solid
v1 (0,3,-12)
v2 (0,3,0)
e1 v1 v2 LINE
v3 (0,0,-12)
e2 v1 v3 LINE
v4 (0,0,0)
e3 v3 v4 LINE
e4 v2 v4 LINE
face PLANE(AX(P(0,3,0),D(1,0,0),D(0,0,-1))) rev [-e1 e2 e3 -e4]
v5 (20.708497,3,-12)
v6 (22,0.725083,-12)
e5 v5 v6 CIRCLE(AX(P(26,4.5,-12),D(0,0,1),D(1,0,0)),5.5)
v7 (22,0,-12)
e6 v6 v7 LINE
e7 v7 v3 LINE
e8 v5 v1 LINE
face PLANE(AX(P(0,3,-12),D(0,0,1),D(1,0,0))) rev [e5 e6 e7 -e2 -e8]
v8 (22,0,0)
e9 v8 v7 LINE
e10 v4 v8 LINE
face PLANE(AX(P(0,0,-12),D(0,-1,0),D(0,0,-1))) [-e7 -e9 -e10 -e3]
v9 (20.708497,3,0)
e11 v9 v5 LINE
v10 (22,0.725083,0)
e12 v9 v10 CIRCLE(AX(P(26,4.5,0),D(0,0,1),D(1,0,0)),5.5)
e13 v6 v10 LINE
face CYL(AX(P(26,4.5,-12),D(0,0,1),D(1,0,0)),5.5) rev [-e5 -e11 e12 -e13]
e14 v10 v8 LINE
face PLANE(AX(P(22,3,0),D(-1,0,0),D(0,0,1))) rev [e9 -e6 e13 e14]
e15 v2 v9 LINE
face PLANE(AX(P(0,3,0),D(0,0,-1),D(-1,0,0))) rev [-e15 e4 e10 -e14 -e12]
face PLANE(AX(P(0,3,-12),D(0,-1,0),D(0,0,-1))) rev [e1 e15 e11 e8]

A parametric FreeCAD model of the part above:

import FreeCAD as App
import Part
import Sketcher
from FreeCAD import Vector
Q = App.Units.Quantity


def add_polygon(sketch, points):
    """Adds a closed chain of lines whose ends are joined by coincident constraints."""
    first, n = sketch.GeometryCount, len(points)
    for a, b in zip(points, points[1:] + points[:1]):
        sketch.addGeometry(Part.LineSegment(App.Vector(*a, 0), App.Vector(*b, 0)), False)
    for i in range(n):
        sketch.addConstraint(Sketcher.Constraint("Coincident", first + i, 2, first + (i + 1) % n, 1))

doc = App.newDocument("Part")
body = doc.addObject("PartDesign::Body", "Body")

sketch1 = body.newObject("Sketcher::SketchObject", "Sketch")
sketch1.AttachmentSupport = (doc.getObject("XZ_Plane"), [""])
sketch1.MapMode = "FlatFace"
add_polygon(sketch1, [(0, -12), (0, 0), (22, 0), (22, -12)])
sketch1.addConstraint(Sketcher.Constraint("Vertical", 0))
sketch1.addConstraint(Sketcher.Constraint("Horizontal", 1))
sketch1.addConstraint(Sketcher.Constraint("Vertical", 2))
sketch1.addConstraint(Sketcher.Constraint("Horizontal", 3))
sketch1.addConstraint(Sketcher.Constraint("Coincident", 0, 2, -1, 1))
sketch1.addConstraint(Sketcher.Constraint("DistanceX", 1, 1, 1, 2, Q("22 mm")))
sketch1.addConstraint(Sketcher.Constraint("DistanceY", 0, 1, 0, 2, Q("12 mm")))
pad1 = body.newObject("PartDesign::Pad", "Pad")
pad1.Profile = sketch1
pad1.Length = 3
pad1.Reversed = True

sketch2 = body.newObject("Sketcher::SketchObject", "Sketch001")
sketch2.AttachmentSupport = (doc.getObject("XY_Plane"), [""])
sketch2.MapMode = "FlatFace"
sketch2.addGeometry(Part.Circle(Vector(26, 4.5, 0), Vector(0, 0, 1), 5.5), False)
sketch2.addConstraint(Sketcher.Constraint("Diameter", 0, Q("11 mm")))
sketch2.addConstraint(Sketcher.Constraint("DistanceX", -1, 1, 0, 3, Q("26 mm")))
sketch2.addConstraint(Sketcher.Constraint("DistanceY", -1, 1, 0, 3, Q("4.5 mm")))
pocket1 = body.newObject("PartDesign::Pocket", "Pocket")
pocket1.Profile = sketch2
pocket1.Type = "ThroughAll"

doc.recompute()
